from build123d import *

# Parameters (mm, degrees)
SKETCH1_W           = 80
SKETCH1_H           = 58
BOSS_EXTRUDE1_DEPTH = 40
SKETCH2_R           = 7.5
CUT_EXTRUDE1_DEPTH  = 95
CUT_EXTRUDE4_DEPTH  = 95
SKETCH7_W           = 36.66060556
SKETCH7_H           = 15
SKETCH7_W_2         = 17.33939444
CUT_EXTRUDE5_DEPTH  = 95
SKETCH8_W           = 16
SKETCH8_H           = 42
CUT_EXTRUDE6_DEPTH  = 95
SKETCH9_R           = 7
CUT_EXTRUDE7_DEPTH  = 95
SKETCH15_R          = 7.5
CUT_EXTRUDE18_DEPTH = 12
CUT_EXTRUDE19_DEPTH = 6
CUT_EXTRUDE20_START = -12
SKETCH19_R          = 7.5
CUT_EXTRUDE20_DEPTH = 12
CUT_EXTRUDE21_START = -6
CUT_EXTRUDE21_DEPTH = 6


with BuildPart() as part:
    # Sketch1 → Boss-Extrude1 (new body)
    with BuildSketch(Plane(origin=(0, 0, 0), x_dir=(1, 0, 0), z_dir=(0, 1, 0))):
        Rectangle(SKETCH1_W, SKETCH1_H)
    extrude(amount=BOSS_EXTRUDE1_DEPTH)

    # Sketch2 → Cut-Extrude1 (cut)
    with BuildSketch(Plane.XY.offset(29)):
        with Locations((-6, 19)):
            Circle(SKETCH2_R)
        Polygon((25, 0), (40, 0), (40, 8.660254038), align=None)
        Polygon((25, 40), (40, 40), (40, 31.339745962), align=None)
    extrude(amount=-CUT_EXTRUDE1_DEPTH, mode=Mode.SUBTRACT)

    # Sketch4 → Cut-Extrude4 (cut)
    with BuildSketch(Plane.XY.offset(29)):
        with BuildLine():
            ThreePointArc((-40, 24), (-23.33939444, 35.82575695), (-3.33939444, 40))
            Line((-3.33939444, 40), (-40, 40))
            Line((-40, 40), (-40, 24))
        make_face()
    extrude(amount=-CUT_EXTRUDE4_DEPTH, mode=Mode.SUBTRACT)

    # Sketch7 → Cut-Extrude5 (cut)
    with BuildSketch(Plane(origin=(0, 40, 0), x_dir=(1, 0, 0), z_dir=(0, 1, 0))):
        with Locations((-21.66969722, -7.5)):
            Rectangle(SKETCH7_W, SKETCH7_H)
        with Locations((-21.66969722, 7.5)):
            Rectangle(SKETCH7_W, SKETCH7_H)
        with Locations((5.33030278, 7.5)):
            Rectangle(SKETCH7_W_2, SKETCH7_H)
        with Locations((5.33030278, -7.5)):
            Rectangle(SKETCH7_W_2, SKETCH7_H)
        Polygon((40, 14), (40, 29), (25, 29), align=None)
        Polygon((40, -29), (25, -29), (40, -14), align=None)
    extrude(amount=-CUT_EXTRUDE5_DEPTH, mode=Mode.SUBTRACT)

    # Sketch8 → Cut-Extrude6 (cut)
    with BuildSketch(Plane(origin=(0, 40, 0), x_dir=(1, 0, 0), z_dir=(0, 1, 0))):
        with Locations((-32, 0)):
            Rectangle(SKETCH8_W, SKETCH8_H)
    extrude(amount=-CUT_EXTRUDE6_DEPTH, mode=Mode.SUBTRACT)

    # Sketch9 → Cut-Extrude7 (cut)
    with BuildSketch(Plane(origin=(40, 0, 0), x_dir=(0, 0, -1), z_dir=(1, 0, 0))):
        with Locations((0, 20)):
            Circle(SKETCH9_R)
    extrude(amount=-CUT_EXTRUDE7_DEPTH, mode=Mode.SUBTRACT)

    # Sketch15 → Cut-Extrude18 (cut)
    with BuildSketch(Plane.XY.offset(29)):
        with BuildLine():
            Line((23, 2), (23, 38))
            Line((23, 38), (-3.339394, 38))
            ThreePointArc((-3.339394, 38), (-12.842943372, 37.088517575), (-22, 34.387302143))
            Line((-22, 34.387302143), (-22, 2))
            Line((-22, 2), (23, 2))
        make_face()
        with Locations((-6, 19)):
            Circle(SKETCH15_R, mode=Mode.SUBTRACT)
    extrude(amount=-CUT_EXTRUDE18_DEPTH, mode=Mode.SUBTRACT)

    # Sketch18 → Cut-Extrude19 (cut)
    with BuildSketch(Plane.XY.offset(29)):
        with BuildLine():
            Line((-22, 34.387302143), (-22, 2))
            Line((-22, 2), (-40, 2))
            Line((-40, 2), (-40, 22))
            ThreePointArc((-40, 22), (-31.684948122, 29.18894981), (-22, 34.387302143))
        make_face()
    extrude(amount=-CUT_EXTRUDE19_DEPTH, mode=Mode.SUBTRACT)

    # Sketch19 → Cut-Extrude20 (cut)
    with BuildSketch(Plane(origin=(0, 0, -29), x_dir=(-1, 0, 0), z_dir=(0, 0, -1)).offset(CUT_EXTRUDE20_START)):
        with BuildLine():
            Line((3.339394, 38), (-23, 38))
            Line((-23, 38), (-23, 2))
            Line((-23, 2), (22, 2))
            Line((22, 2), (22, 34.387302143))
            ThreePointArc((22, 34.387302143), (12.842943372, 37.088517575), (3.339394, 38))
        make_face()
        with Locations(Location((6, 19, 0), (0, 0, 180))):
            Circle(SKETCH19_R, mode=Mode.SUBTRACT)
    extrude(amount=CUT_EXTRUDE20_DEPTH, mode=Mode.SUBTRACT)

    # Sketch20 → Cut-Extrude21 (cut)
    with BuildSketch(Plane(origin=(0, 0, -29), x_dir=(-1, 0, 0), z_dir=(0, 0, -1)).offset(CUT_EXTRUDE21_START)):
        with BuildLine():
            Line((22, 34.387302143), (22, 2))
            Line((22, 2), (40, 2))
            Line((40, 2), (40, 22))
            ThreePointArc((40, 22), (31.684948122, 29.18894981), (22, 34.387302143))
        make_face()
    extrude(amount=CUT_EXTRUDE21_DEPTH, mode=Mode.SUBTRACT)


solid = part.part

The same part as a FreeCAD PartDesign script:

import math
import FreeCAD as App
import Part
import Sketcher
from FreeCAD import Vector
Q = App.Units.Quantity

doc = App.newDocument("Part")
body = doc.addObject("PartDesign::Body", "Body")

sketch1 = doc.addObject("Sketcher::SketchObject", "Sketch")
body.addObject(sketch1)
sketch1.AttachmentSupport = (doc.XZ_Plane, [""])
sketch1.MapMode = "FlatFace"
sketch1.addGeometry(Part.LineSegment(Vector(-40, -29, 0), Vector(-40, 29, 0)), False)
sketch1.addGeometry(Part.LineSegment(Vector(-40, 29, 0), Vector(40, 29, 0)), False)
sketch1.addGeometry(Part.LineSegment(Vector(40, 29, 0), Vector(40, -29, 0)), False)
sketch1.addGeometry(Part.LineSegment(Vector(40, -29, 0), Vector(-40, -29, 0)), False)
sketch1.addConstraint(Sketcher.Constraint("Coincident", 0, 2, 1, 1))
sketch1.addConstraint(Sketcher.Constraint("Coincident", 1, 2, 2, 1))
sketch1.addConstraint(Sketcher.Constraint("Coincident", 2, 2, 3, 1))
sketch1.addConstraint(Sketcher.Constraint("Coincident", 3, 2, 0, 1))
sketch1.addConstraint(Sketcher.Constraint("Vertical", 0))
sketch1.addConstraint(Sketcher.Constraint("Horizontal", 1))
sketch1.addConstraint(Sketcher.Constraint("Vertical", 2))
sketch1.addConstraint(Sketcher.Constraint("Horizontal", 3))
sketch1.addConstraint(Sketcher.Constraint("Symmetric", 0, 2, 2, 2, -1, 1))
sketch1.addConstraint(Sketcher.Constraint("DistanceX", 1, 1, 1, 2, 80.0))
sketch1.addConstraint(Sketcher.Constraint("DistanceY", 0, 1, 0, 2, 58.0))
pad1 = doc.addObject("PartDesign::Pad", "Pad")
body.addObject(pad1)
pad1.Profile = sketch1
pad1.Length = 40
pad1.Reversed = True

sketch2 = doc.addObject("Sketcher::SketchObject", "Sketch001")
body.addObject(sketch2)
sketch2.AttachmentSupport = (doc.XY_Plane, [""])
sketch2.MapMode = "FlatFace"
sketch2.AttachmentOffset = App.Placement(Vector(0, 0, 29), App.Rotation())
sketch2.addGeometry(Part.Circle(Vector(-6, 19, 0), Vector(0, 0, 1), 8), False)
sketch2.addGeometry(Part.LineSegment(Vector(25, 0, 0), Vector(40, 0, 0)), False)
sketch2.addGeometry(Part.LineSegment(Vector(40, 0, 0), Vector(40, 9, 0)), False)
sketch2.addGeometry(Part.LineSegment(Vector(40, 9, 0), Vector(25, 0, 0)), False)
sketch2.addGeometry(Part.LineSegment(Vector(40, 40, 0), Vector(25, 40, 0)), False)
sketch2.addGeometry(Part.LineSegment(Vector(25, 40, 0), Vector(40, 31, 0)), False)
sketch2.addGeometry(Part.LineSegment(Vector(40, 31, 0), Vector(40, 40, 0)), False)
sketch2.addConstraint(Sketcher.Constraint("Coincident", 1, 2, 2, 1))
sketch2.addConstraint(Sketcher.Constraint("Coincident", 2, 2, 3, 1))
sketch2.addConstraint(Sketcher.Constraint("Coincident", 3, 2, 1, 1))
sketch2.addConstraint(Sketcher.Constraint("Coincident", 4, 2, 5, 1))
sketch2.addConstraint(Sketcher.Constraint("Coincident", 5, 2, 6, 1))
sketch2.addConstraint(Sketcher.Constraint("Coincident", 6, 2, 4, 1))
sketch2.addConstraint(Sketcher.Constraint("Horizontal", 1))
sketch2.addConstraint(Sketcher.Constraint("Vertical", 2))
sketch2.addConstraint(Sketcher.Constraint("Horizontal", 4))
sketch2.addConstraint(Sketcher.Constraint("Vertical", 6))
sketch2.addConstraint(Sketcher.Constraint("PointOnObject", 1, 2, -1))
sketch2.addConstraint(Sketcher.Constraint("Vertical", 3, 2, 4, 2))
sketch2.addConstraint(Sketcher.Constraint("Vertical", 2, 2, 5, 2))
sketch2.addConstraint(Sketcher.Constraint("Equal", 2, 6))
sketch2.addConstraint(Sketcher.Constraint("Diameter", 0, 15.0))
sketch2.addConstraint(Sketcher.Constraint("DistanceX", 1, 1, 1, 2, 15.0))
sketch2.addConstraint(Sketcher.Constraint("Angle", 3, Q("-150 deg")))
sketch2.addConstraint(Sketcher.Constraint("DistanceX", 0, 3, -1, 1, 6.0))
sketch2.addConstraint(Sketcher.Constraint("DistanceY", -1, 1, 0, 3, 19.0))
sketch2.addConstraint(Sketcher.Constraint("DistanceX", -1, 1, 1, 2, 40.0))
sketch2.addConstraint(Sketcher.Constraint("DistanceY", -1, 1, 4, 2, 40.0))
pocket1 = doc.addObject("PartDesign::Pocket", "Pocket")
body.addObject(pocket1)
pocket1.Profile = sketch2
pocket1.Length = 95

sketch3 = doc.addObject("Sketcher::SketchObject", "Sketch002")
body.addObject(sketch3)
sketch3.AttachmentSupport = (doc.XY_Plane, [""])
sketch3.MapMode = "FlatFace"
sketch3.AttachmentOffset = App.Placement(Vector(0, 0, 29), App.Rotation())
sketch3.addGeometry(Part.ArcOfCircle(Part.Circle(Vector(-3, -10, 0), Vector(0, 0, 1), 50), math.radians(90), math.radians(137)), False)
sketch3.addGeometry(Part.LineSegment(Vector(-3, 40, 0), Vector(-40, 40, 0)), False)
sketch3.addGeometry(Part.LineSegment(Vector(-40, 40, 0), Vector(-40, 24, 0)), False)
sketch3.addConstraint(Sketcher.Constraint("Tangent", 0, 1, 1, 1))
sketch3.addConstraint(Sketcher.Constraint("Coincident", 1, 2, 2, 1))
sketch3.addConstraint(Sketcher.Constraint("Coincident", 2, 2, 0, 2))
sketch3.addConstraint(Sketcher.Constraint("Horizontal", 1))
sketch3.addConstraint(Sketcher.Constraint("Vertical", 2))
sketch3.addConstraint(Sketcher.Constraint("Radius", 0, 50.0))
sketch3.addConstraint(Sketcher.Constraint("DistanceY", 2, 2, 2, 1, 16.0))
sketch3.addConstraint(Sketcher.Constraint("DistanceY", 0, 3, -1, 1, 10.0))
sketch3.addConstraint(Sketcher.Constraint("DistanceX", 1, 2, -1, 1, 40.0))
pocket2 = doc.addObject("PartDesign::Pocket", "Pocket001")
body.addObject(pocket2)
pocket2.Profile = sketch3
pocket2.Length = 95

sketch4 = doc.addObject("Sketcher::SketchObject", "Sketch003")
body.addObject(sketch4)
sketch4.AttachmentSupport = (doc.XZ_Plane, [""])
sketch4.MapMode = "FlatFace"
sketch4.AttachmentOffset = App.Placement(Vector(0, 0, -40), App.Rotation())
sketch4.addGeometry(Part.LineSegment(Vector(-40, 15, 0), Vector(14, 15, 0)), False)
sketch4.addGeometry(Part.LineSegment(Vector(14, 15, 0), Vector(14, -15, 0)), False)
sketch4.addGeometry(Part.LineSegment(Vector(14, -15, 0), Vector(-40, -15, 0)), False)
sketch4.addGeometry(Part.LineSegment(Vector(-40, -15, 0), Vector(-40, 15, 0)), False)
sketch4.addGeometry(Part.LineSegment(Vector(40, -14, 0), Vector(40, -29, 0)), False)
sketch4.addGeometry(Part.LineSegment(Vector(40, -29, 0), Vector(25, -29, 0)), False)
sketch4.addGeometry(Part.LineSegment(Vector(25, -29, 0), Vector(40, -14, 0)), False)
sketch4.addGeometry(Part.LineSegment(Vector(25, 29, 0), Vector(40, 29, 0)), False)
sketch4.addGeometry(Part.LineSegment(Vector(40, 29, 0), Vector(40, 14, 0)), False)
sketch4.addGeometry(Part.LineSegment(Vector(40, 14, 0), Vector(25, 29, 0)), False)
sketch4.addConstraint(Sketcher.Constraint("Coincident", 0, 2, 1, 1))
sketch4.addConstraint(Sketcher.Constraint("Coincident", 1, 2, 2, 1))
sketch4.addConstraint(Sketcher.Constraint("Coincident", 2, 2, 3, 1))
sketch4.addConstraint(Sketcher.Constraint("Coincident", 3, 2, 0, 1))
sketch4.addConstraint(Sketcher.Constraint("Coincident", 4, 2, 5, 1))
sketch4.addConstraint(Sketcher.Constraint("Coincident", 5, 2, 6, 1))
sketch4.addConstraint(Sketcher.Constraint("Coincident", 6, 2, 4, 1))
sketch4.addConstraint(Sketcher.Constraint("Coincident", 7, 2, 8, 1))
sketch4.addConstraint(Sketcher.Constraint("Coincident", 8, 2, 9, 1))
sketch4.addConstraint(Sketcher.Constraint("Coincident", 9, 2, 7, 1))
sketch4.addConstraint(Sketcher.Constraint("Horizontal", 0))
sketch4.addConstraint(Sketcher.Constraint("Vertical", 1))
sketch4.addConstraint(Sketcher.Constraint("Horizontal", 2))
sketch4.addConstraint(Sketcher.Constraint("Vertical", 3))
sketch4.addConstraint(Sketcher.Constraint("Vertical", 4))
sketch4.addConstraint(Sketcher.Constraint("Horizontal", 5))
sketch4.addConstraint(Sketcher.Constraint("Horizontal", 7))
sketch4.addConstraint(Sketcher.Constraint("Vertical", 8))
sketch4.addConstraint(Sketcher.Constraint("Symmetric", 4, 2, 7, 2, -1))
sketch4.addConstraint(Sketcher.Constraint("Perpendicular", 6, 9))
sketch4.addConstraint(Sketcher.Constraint("Vertical", 5, 2, 9, 2))
sketch4.addConstraint(Sketcher.Constraint("Equal", 7, 4))
sketch4.addConstraint(Sketcher.Constraint("DistanceX", 0, 1, 0, 2, 54.0))
sketch4.addConstraint(Sketcher.Constraint("DistanceX", 5, 2, 5, 1, 15.0))
sketch4.addConstraint(Sketcher.Constraint("DistanceY", 1, 2, 1, 1, 30.0))
sketch4.addConstraint(Sketcher.Constraint("DistanceX", -1, 1, 0, 2, 14.0))
sketch4.addConstraint(Sketcher.Constraint("DistanceY", -1, 1, 0, 2, 15.0))
sketch4.addConstraint(Sketcher.Constraint("DistanceX", -1, 1, 4, 2, 40.0))
sketch4.addConstraint(Sketcher.Constraint("DistanceY", 4, 2, -1, 1, 29.0))
pocket3 = doc.addObject("PartDesign::Pocket", "Pocket002")
body.addObject(pocket3)
pocket3.Profile = sketch4
pocket3.Length = 95
pocket3.Reversed = True

sketch5 = doc.addObject("Sketcher::SketchObject", "Sketch004")
body.addObject(sketch5)
sketch5.AttachmentSupport = (doc.XZ_Plane, [""])
sketch5.MapMode = "FlatFace"
sketch5.AttachmentOffset = App.Placement(Vector(0, 0, -40), App.Rotation())
sketch5.addGeometry(Part.LineSegment(Vector(-40, -21, 0), Vector(-40, 21, 0)), False)
sketch5.addGeometry(Part.LineSegment(Vector(-40, 21, 0), Vector(-24, 21, 0)), False)
sketch5.addGeometry(Part.LineSegment(Vector(-24, 21, 0), Vector(-24, -21, 0)), False)
sketch5.addGeometry(Part.LineSegment(Vector(-24, -21, 0), Vector(-40, -21, 0)), False)
sketch5.addConstraint(Sketcher.Constraint("Coincident", 0, 2, 1, 1))
sketch5.addConstraint(Sketcher.Constraint("Coincident", 1, 2, 2, 1))
sketch5.addConstraint(Sketcher.Constraint("Coincident", 2, 2, 3, 1))
sketch5.addConstraint(Sketcher.Constraint("Coincident", 3, 2, 0, 1))
sketch5.addConstraint(Sketcher.Constraint("Vertical", 0))
sketch5.addConstraint(Sketcher.Constraint("Horizontal", 1))
sketch5.addConstraint(Sketcher.Constraint("Vertical", 2))
sketch5.addConstraint(Sketcher.Constraint("Horizontal", 3))
sketch5.addConstraint(Sketcher.Constraint("DistanceX", 1, 1, 1, 2, 16.0))
sketch5.addConstraint(Sketcher.Constraint("DistanceY", 0, 1, 0, 2, 42.0))
sketch5.addConstraint(Sketcher.Constraint("DistanceX", 0, 2, -1, 1, 40.0))
sketch5.addConstraint(Sketcher.Constraint("DistanceY", -1, 1, 0, 2, 21.0))
pocket4 = doc.addObject("PartDesign::Pocket", "Pocket003")
body.addObject(pocket4)
pocket4.Profile = sketch5
pocket4.Length = 95
pocket4.Reversed = True

sketch6 = doc.addObject("Sketcher::SketchObject", "Sketch005")
body.addObject(sketch6)
sketch6.AttachmentSupport = (doc.YZ_Plane, [""])
sketch6.MapMode = "FlatFace"
sketch6.AttachmentOffset = App.Placement(Vector(0, 0, 40), App.Rotation())
sketch6.addGeometry(Part.Circle(Vector(20, 0, 0), Vector(0, 0, 1), 7), False)
sketch6.addConstraint(Sketcher.Constraint("PointOnObject", 0, 3, -1))
sketch6.addConstraint(Sketcher.Constraint("Diameter", 0, 14.0))
sketch6.addConstraint(Sketcher.Constraint("DistanceX", -1, 1, 0, 3, 20.0))
pocket5 = doc.addObject("PartDesign::Pocket", "Pocket004")
body.addObject(pocket5)
pocket5.Profile = sketch6
pocket5.Length = 95

sketch7 = doc.addObject("Sketcher::SketchObject", "Sketch006")
body.addObject(sketch7)
sketch7.AttachmentSupport = (doc.XY_Plane, [""])
sketch7.MapMode = "FlatFace"
sketch7.AttachmentOffset = App.Placement(Vector(0, 0, 29), App.Rotation())
sketch7.addGeometry(Part.LineSegment(Vector(23, 2, 0), Vector(23, 38, 0)), False)
sketch7.addGeometry(Part.LineSegment(Vector(23, 38, 0), Vector(-3, 38, 0)), False)
sketch7.addGeometry(Part.ArcOfCircle(Part.Circle(Vector(-3, -12, 0), Vector(0, 0, 1), 50), math.radians(90), math.radians(112)), False)
sketch7.addGeometry(Part.LineSegment(Vector(-22, 34, 0), Vector(-22, 2, 0)), False)
sketch7.addGeometry(Part.LineSegment(Vector(-22, 2, 0), Vector(23, 2, 0)), False)
sketch7.addGeometry(Part.Circle(Vector(-6, 19, 0), Vector(0, 0, 1), 8), False)
sketch7.addConstraint(Sketcher.Constraint("Coincident", 0, 2, 1, 1))
sketch7.addConstraint(Sketcher.Constraint("Tangent", 1, 2, 2, 1))
sketch7.addConstraint(Sketcher.Constraint("Coincident", 2, 2, 3, 1))
sketch7.addConstraint(Sketcher.Constraint("Coincident", 3, 2, 4, 1))
sketch7.addConstraint(Sketcher.Constraint("Coincident", 4, 2, 0, 1))
sketch7.addConstraint(Sketcher.Constraint("Vertical", 0))
sketch7.addConstraint(Sketcher.Constraint("Horizontal", 1))
sketch7.addConstraint(Sketcher.Constraint("Vertical", 3))
sketch7.addConstraint(Sketcher.Constraint("Horizontal", 4))
sketch7.addConstraint(Sketcher.Constraint("Diameter", 5, 15.0))
sketch7.addConstraint(Sketcher.Constraint("Radius", 2, 50.0))
sketch7.addConstraint(Sketcher.Constraint("DistanceX", 4, 1, 4, 2, 45.0))
sketch7.addConstraint(Sketcher.Constraint("DistanceY", 0, 1, 0, 2, 36.0))
sketch7.addConstraint(Sketcher.Constraint("DistanceY", 2, 3, -1, 1, 12.0))
sketch7.addConstraint(Sketcher.Constraint("DistanceX", 5, 3, -1, 1, 6.0))
sketch7.addConstraint(Sketcher.Constraint("DistanceY", -1, 1, 5, 3, 19.0))
sketch7.addConstraint(Sketcher.Constraint("DistanceX", -1, 1, 0, 2, 23.0))
sketch7.addConstraint(Sketcher.Constraint("DistanceX", 1, 2, 1, 1, 26.339394))
pocket6 = doc.addObject("PartDesign::Pocket", "Pocket005")
body.addObject(pocket6)
pocket6.Profile = sketch7
pocket6.Length = 12

sketch8 = doc.addObject("Sketcher::SketchObject", "Sketch007")
body.addObject(sketch8)
sketch8.AttachmentSupport = (doc.XY_Plane, [""])
sketch8.MapMode = "FlatFace"
sketch8.AttachmentOffset = App.Placement(Vector(0, 0, 29), App.Rotation())
sketch8.addGeometry(Part.LineSegment(Vector(-22, 2, 0), Vector(-22, 34, 0)), False)
sketch8.addGeometry(Part.ArcOfCircle(Part.Circle(Vector(-3, -12, 0), Vector(0, 0, 1), 50), math.radians(112), math.radians(137)), False)
sketch8.addGeometry(Part.LineSegment(Vector(-40, 22, 0), Vector(-40, 2, 0)), False)
sketch8.addGeometry(Part.LineSegment(Vector(-40, 2, 0), Vector(-22, 2, 0)), False)
sketch8.addConstraint(Sketcher.Constraint("Coincident", 0, 2, 1, 1))
sketch8.addConstraint(Sketcher.Constraint("Coincident", 1, 2, 2, 1))
sketch8.addConstraint(Sketcher.Constraint("Coincident", 2, 2, 3, 1))
sketch8.addConstraint(Sketcher.Constraint("Coincident", 3, 2, 0, 1))
sketch8.addConstraint(Sketcher.Constraint("Vertical", 0))
sketch8.addConstraint(Sketcher.Constraint("Vertical", 2))
sketch8.addConstraint(Sketcher.Constraint("Horizontal", 3))
sketch8.addConstraint(Sketcher.Constraint("Radius", 1, 50.0))
sketch8.addConstraint(Sketcher.Constraint("DistanceX", 3, 1, 3, 2, 18.0))
sketch8.addConstraint(Sketcher.Constraint("DistanceY", 2, 2, 2, 1, 20.0))
sketch8.addConstraint(Sketcher.Constraint("DistanceY", 1, 3, -1, 1, 12.0))
sketch8.addConstraint(Sketcher.Constraint("DistanceX", 0, 2, -1, 1, 22.0))
sketch8.addConstraint(Sketcher.Constraint("DistanceY", -1, 1, 1, 2, 22.0))
pocket7 = doc.addObject("PartDesign::Pocket", "Pocket006")
body.addObject(pocket7)
pocket7.Profile = sketch8
pocket7.Length = 6

sketch9 = doc.addObject("Sketcher::SketchObject", "Sketch008")
body.addObject(sketch9)
sketch9.AttachmentSupport = (doc.XY_Plane, [""])
sketch9.MapMode = "FlatFace"
sketch9.AttachmentOffset = App.Placement(Vector(0, 0, -17), App.Rotation())
sketch9.addGeometry(Part.LineSegment(Vector(-3, 38, 0), Vector(23, 38, 0)), False)
sketch9.addGeometry(Part.LineSegment(Vector(23, 38, 0), Vector(23, 2, 0)), False)
sketch9.addGeometry(Part.LineSegment(Vector(23, 2, 0), Vector(-22, 2, 0)), False)
sketch9.addGeometry(Part.LineSegment(Vector(-22, 2, 0), Vector(-22, 34, 0)), False)
sketch9.addGeometry(Part.ArcOfCircle(Part.Circle(Vector(-3, -12, 0), Vector(0, 0, 1), 50), math.radians(90), math.radians(112)), False)
sketch9.addGeometry(Part.Circle(Vector(-6, 19, 0), Vector(0, 0, 1), 8), False)
sketch9.addConstraint(Sketcher.Constraint("Coincident", 0, 2, 1, 1))
sketch9.addConstraint(Sketcher.Constraint("Coincident", 1, 2, 2, 1))
sketch9.addConstraint(Sketcher.Constraint("Coincident", 2, 2, 3, 1))
sketch9.addConstraint(Sketcher.Constraint("Coincident", 3, 2, 4, 2))
sketch9.addConstraint(Sketcher.Constraint("Tangent", 4, 1, 0, 1))
sketch9.addConstraint(Sketcher.Constraint("Horizontal", 0))
sketch9.addConstraint(Sketcher.Constraint("Vertical", 1))
sketch9.addConstraint(Sketcher.Constraint("Horizontal", 2))
sketch9.addConstraint(Sketcher.Constraint("Vertical", 3))
sketch9.addConstraint(Sketcher.Constraint("Diameter", 5, 15.0))
sketch9.addConstraint(Sketcher.Constraint("Radius", 4, 50.0))
sketch9.addConstraint(Sketcher.Constraint("DistanceX", 2, 2, 2, 1, 45.0))
sketch9.addConstraint(Sketcher.Constraint("DistanceY", 1, 2, 1, 1, 36.0))
sketch9.addConstraint(Sketcher.Constraint("DistanceY", 4, 3, -1, 1, 12.0))
sketch9.addConstraint(Sketcher.Constraint("DistanceX", 5, 3, -1, 1, 6.0))
sketch9.addConstraint(Sketcher.Constraint("DistanceY", -1, 1, 5, 3, 19.0))
sketch9.addConstraint(Sketcher.Constraint("DistanceX", -1, 1, 0, 2, 23.0))
sketch9.addConstraint(Sketcher.Constraint("DistanceX", 0, 1, 0, 2, 26.339394))
pocket8 = doc.addObject("PartDesign::Pocket", "Pocket007")
body.addObject(pocket8)
pocket8.Profile = sketch9
pocket8.Length = 12

sketch10 = doc.addObject("Sketcher::SketchObject", "Sketch009")
body.addObject(sketch10)
sketch10.AttachmentSupport = (doc.XY_Plane, [""])
sketch10.MapMode = "FlatFace"
sketch10.AttachmentOffset = App.Placement(Vector(0, 0, -23), App.Rotation())
sketch10.addGeometry(Part.LineSegment(Vector(-22, 34, 0), Vector(-22, 2, 0)), False)
sketch10.addGeometry(Part.LineSegment(Vector(-22, 2, 0), Vector(-40, 2, 0)), False)
sketch10.addGeometry(Part.LineSegment(Vector(-40, 2, 0), Vector(-40, 22, 0)), False)
sketch10.addGeometry(Part.ArcOfCircle(Part.Circle(Vector(-3, -12, 0), Vector(0, 0, 1), 50), math.radians(112), math.radians(137)), False)
sketch10.addConstraint(Sketcher.Constraint("Coincident", 0, 2, 1, 1))
sketch10.addConstraint(Sketcher.Constraint("Coincident", 1, 2, 2, 1))
sketch10.addConstraint(Sketcher.Constraint("Coincident", 2, 2, 3, 2))
sketch10.addConstraint(Sketcher.Constraint("Coincident", 3, 1, 0, 1))
sketch10.addConstraint(Sketcher.Constraint("Vertical", 0))
sketch10.addConstraint(Sketcher.Constraint("Horizontal", 1))
sketch10.addConstraint(Sketcher.Constraint("Vertical", 2))
sketch10.addConstraint(Sketcher.Constraint("Radius", 3, 50.0))
sketch10.addConstraint(Sketcher.Constraint("DistanceX", 1, 2, 1, 1, 18.0))
sketch10.addConstraint(Sketcher.Constraint("DistanceY", 2, 1, 2, 2, 20.0))
sketch10.addConstraint(Sketcher.Constraint("DistanceY", 3, 3, -1, 1, 12.0))
sketch10.addConstraint(Sketcher.Constraint("DistanceX", 0, 2, -1, 1, 22.0))
sketch10.addConstraint(Sketcher.Constraint("DistanceY", -1, 1, 0, 2, 2.0))
pocket9 = doc.addObject("PartDesign::Pocket", "Pocket008")
body.addObject(pocket9)
pocket9.Profile = sketch10
pocket9.Length = 6

doc.recompute()
